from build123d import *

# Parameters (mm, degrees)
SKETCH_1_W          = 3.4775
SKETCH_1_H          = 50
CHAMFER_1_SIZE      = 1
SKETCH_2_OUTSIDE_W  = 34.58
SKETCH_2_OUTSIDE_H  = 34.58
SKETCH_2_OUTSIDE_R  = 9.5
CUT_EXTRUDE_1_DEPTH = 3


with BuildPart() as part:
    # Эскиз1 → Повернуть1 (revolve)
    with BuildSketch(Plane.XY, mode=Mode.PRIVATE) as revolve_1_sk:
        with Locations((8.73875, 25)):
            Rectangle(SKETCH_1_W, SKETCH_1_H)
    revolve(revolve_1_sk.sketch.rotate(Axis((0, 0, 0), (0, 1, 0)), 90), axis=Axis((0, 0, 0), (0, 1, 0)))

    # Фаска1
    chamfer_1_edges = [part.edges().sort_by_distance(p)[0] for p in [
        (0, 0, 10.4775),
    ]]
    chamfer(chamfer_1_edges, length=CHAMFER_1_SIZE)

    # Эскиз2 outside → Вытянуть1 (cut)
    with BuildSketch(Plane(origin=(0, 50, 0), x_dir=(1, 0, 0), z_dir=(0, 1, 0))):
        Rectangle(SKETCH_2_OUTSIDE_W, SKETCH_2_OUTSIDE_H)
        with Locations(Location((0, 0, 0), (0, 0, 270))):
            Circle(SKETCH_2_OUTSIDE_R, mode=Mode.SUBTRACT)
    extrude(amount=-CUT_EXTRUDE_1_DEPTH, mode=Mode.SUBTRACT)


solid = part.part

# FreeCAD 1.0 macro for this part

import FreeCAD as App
import Part
import Sketcher
Q = App.Units.Quantity


def edges_at(feature, points):
    """Names of the edges that pass closest to the given points."""
    edges = feature.Shape.Edges
    near = lambda p: min(range(len(edges)), key=lambda i: edges[i].distToShape(Part.Vertex(*p))[0])
    return sorted({f"Edge{near(p) + 1}" for p in points})

doc = App.newDocument("Part")
params = doc.addObject("Spreadsheet::Sheet", "Params")
for row, (alias, value) in enumerate([
    ("sketch1_height", "50 mm"),
    ("revolution_angle", "360 deg"),
    ("chamfer_size", "1 mm"),
    ("sketch2_diameter", "19 mm"),
    ("sketch2_width", "34.58 mm"),
    ("pocket1_length", "3 mm"),
], start=1):
    params.set(f"A{row}", alias)
    params.set(f"B{row}", "=" + value)
    params.setAlias(f"B{row}", alias)

body = doc.addObject("PartDesign::Body", "Body")

sketch1 = body.newObject("Sketcher::SketchObject", "Sketch")
sketch1.AttachmentSupport = (doc.getObject("XY_Plane"), [""])
sketch1.MapMode = "FlatFace"
sketch1.addGeometry([
    Part.LineSegment(App.Vector(7, 50, 0), App.Vector(7, 0, 0)),
    Part.LineSegment(App.Vector(7, 0, 0), App.Vector(10.5, 0, 0)),
    Part.LineSegment(App.Vector(10.5, 0, 0), App.Vector(10.5, 50, 0)),
    Part.LineSegment(App.Vector(10.5, 50, 0), App.Vector(7, 50, 0)),
], False)
sketch1.addConstraint([
    Sketcher.Constraint("Coincident", 0, 2, 1, 1),
    Sketcher.Constraint("Coincident", 1, 2, 2, 1),
    Sketcher.Constraint("Coincident", 2, 2, 3, 1),
    Sketcher.Constraint("Coincident", 3, 2, 0, 1),
    Sketcher.Constraint("Vertical", 0),
    Sketcher.Constraint("Horizontal", 1),
    Sketcher.Constraint("Vertical", 2),
    Sketcher.Constraint("Horizontal", 3),
    Sketcher.Constraint("PointOnObject", 0, 2, -1),
    Sketcher.Constraint("DistanceY", 0, 2, 0, 1, Q("50 mm")),
    Sketcher.Constraint("DistanceX", -1, 1, 0, 2, Q("7 mm")),
    Sketcher.Constraint("DistanceX", 1, 1, 1, 2, Q("3.4775 mm")),
])
sketch1.setExpression("Constraints[9]", "Params.sketch1_height")
revolution = body.newObject("PartDesign::Revolution", "Revolution")
revolution.Profile = sketch1
revolution.ReferenceAxis = (sketch1, ["V_Axis"])
revolution.setExpression("Angle", "Params.revolution_angle")
doc.recompute()

chamfer = body.newObject("PartDesign::Chamfer", "Chamfer")
chamfer.Base = (revolution, edges_at(revolution, [(0, 0, 10.477)]))
chamfer.setExpression("Size", "Params.chamfer_size")

sketch2 = body.newObject("Sketcher::SketchObject", "Sketch001")
sketch2.AttachmentSupport = (doc.getObject("XZ_Plane"), [""])
sketch2.MapMode = "FlatFace"
sketch2.AttachmentOffset = App.Placement(App.Vector(0, 0, -50), App.Rotation())
sketch2.addGeometry([
    Part.LineSegment(App.Vector(-17, -17, 0), App.Vector(-17, 17, 0)),
    Part.LineSegment(App.Vector(-17, 17, 0), App.Vector(17, 17, 0)),
    Part.LineSegment(App.Vector(17, 17, 0), App.Vector(17, -17, 0)),
    Part.LineSegment(App.Vector(17, -17, 0), App.Vector(-17, -17, 0)),
    Part.Circle(App.Vector(0, 0, 0), App.Vector(0, 0, 1), 10),
], False)
sketch2.addConstraint([
    Sketcher.Constraint("Coincident", 0, 2, 1, 1),
    Sketcher.Constraint("Coincident", 1, 2, 2, 1),
    Sketcher.Constraint("Coincident", 2, 2, 3, 1),
    Sketcher.Constraint("Coincident", 3, 2, 0, 1),
    Sketcher.Constraint("Vertical", 0),
    Sketcher.Constraint("Horizontal", 1),
    Sketcher.Constraint("Vertical", 2),
    Sketcher.Constraint("Horizontal", 3),
    Sketcher.Constraint("Coincident", 4, 3, -1, 1),
    Sketcher.Constraint("Symmetric", 0, 2, 2, 2, -1, 1),
    Sketcher.Constraint("Equal", 3, 0),
    Sketcher.Constraint("Diameter", 4, Q("19 mm")),
    Sketcher.Constraint("DistanceX", 1, 1, 1, 2, Q("34.58 mm")),
])
sketch2.setExpression("Constraints[11]", "Params.sketch2_diameter")
sketch2.setExpression("Constraints[12]", "Params.sketch2_width")
pocket1 = body.newObject("PartDesign::Pocket", "Pocket")
pocket1.Profile = sketch2
pocket1.setExpression("Length", "Params.pocket1_length")
pocket1.Reversed = True

doc.recompute()
